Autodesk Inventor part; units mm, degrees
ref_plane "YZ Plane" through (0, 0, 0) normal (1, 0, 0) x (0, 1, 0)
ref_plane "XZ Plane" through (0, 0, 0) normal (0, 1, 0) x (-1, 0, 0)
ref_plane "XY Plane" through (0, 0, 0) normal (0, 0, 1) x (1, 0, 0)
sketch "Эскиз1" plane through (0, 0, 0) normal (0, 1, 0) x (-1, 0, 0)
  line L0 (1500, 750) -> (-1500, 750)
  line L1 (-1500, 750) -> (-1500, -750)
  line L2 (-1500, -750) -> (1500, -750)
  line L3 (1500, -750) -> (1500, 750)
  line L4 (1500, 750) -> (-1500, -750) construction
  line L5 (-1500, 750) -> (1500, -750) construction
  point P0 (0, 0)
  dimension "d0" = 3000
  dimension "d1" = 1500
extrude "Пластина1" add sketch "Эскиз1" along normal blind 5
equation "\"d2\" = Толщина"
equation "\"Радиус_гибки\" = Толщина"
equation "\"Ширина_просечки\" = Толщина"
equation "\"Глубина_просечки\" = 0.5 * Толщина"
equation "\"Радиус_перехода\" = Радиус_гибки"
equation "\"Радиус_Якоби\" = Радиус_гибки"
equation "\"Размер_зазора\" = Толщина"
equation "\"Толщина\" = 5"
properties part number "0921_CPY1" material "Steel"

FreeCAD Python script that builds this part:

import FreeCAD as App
import Part
import Sketcher


def add_polygon(sketch, points):
    """Adds a closed chain of lines whose ends are joined by coincident constraints."""
    first, n = sketch.GeometryCount, len(points)
    for a, b in zip(points, points[1:] + points[:1]):
        sketch.addGeometry(Part.LineSegment(App.Vector(*a, 0), App.Vector(*b, 0)), False)
    for i in range(n):
        sketch.addConstraint(Sketcher.Constraint("Coincident", first + i, 2, first + (i + 1) % n, 1))

doc = App.newDocument("Part")
body = doc.addObject("PartDesign::Body", "Body")

sketch1 = doc.addObject("Sketcher::SketchObject", "Sketch")
body.addObject(sketch1)
sketch1.AttachmentSupport = (doc.XZ_Plane, [""])
sketch1.MapMode = "FlatFace"
add_polygon(sketch1, [(-1500, -750), (-1500, 750), (1500, 750), (1500, -750)])
sketch1.addConstraint([
    Sketcher.Constraint("Vertical", 0),
    Sketcher.Constraint("Horizontal", 1),
    Sketcher.Constraint("Vertical", 2),
    Sketcher.Constraint("Horizontal", 3),
    Sketcher.Constraint("Symmetric", 0, 2, 2, 2, -1, 1),
    Sketcher.Constraint("DistanceX", 1, 1, 1, 2, 3000.0),
    Sketcher.Constraint("DistanceY", 0, 1, 0, 2, 1500.0),
])
pad1 = doc.addObject("PartDesign::Pad", "Pad")
body.addObject(pad1)
pad1.Profile = sketch1
pad1.Length = 5
pad1.Reversed = True

doc.recompute()
